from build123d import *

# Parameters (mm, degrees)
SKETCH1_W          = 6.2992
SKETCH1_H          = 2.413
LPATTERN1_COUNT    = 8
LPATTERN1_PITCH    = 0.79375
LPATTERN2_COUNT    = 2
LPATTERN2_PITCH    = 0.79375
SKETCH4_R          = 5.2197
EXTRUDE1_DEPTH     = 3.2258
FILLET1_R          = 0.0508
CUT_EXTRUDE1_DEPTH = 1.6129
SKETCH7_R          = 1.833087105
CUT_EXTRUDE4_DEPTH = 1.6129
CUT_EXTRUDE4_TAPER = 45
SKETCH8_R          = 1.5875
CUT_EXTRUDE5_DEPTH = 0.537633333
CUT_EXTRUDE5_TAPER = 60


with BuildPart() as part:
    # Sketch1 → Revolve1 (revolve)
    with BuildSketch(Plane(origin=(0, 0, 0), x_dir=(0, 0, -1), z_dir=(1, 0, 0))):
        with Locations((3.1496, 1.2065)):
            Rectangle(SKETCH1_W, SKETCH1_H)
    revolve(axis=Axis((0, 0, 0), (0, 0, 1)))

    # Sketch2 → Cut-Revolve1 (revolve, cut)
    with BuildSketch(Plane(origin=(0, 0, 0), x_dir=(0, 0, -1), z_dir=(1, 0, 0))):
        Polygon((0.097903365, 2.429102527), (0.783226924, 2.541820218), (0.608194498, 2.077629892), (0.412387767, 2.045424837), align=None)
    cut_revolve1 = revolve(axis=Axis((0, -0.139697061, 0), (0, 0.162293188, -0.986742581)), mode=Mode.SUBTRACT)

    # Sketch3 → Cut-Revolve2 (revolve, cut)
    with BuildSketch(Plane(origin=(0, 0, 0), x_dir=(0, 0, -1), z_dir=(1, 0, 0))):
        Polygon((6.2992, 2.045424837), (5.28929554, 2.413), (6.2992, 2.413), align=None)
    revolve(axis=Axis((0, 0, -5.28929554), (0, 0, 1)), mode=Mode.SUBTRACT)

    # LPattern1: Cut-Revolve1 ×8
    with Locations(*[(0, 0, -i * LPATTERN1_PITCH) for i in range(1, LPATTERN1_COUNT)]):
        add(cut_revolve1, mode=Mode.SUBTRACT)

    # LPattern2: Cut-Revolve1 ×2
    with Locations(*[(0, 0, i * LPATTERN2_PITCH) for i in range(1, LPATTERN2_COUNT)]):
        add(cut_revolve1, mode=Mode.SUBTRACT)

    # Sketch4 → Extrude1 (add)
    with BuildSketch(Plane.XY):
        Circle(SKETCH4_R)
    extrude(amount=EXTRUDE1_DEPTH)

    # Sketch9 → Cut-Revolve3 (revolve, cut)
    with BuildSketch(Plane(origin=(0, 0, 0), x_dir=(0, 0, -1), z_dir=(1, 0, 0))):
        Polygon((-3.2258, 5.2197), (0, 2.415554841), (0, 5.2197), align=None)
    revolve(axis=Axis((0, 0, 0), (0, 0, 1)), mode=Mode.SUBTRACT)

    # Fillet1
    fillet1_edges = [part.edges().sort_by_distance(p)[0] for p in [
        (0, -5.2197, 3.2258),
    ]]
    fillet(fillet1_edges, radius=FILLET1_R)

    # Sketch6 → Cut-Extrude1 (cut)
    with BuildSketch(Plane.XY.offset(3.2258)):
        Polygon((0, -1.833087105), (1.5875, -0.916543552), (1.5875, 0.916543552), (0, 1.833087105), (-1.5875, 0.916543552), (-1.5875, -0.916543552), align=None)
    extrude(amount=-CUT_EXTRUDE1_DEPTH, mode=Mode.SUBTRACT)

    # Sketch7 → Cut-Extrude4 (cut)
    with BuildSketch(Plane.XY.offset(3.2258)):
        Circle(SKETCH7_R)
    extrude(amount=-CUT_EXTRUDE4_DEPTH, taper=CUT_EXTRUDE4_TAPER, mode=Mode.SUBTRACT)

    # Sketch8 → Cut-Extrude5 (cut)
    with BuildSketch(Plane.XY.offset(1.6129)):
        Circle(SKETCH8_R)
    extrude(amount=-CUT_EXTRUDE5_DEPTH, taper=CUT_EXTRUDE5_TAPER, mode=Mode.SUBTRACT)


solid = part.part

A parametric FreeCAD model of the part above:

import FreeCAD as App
import Part
import Sketcher
from FreeCAD import Vector
Q = App.Units.Quantity


def edges_at(feature, points):
    """Names of the edges that pass closest to the given points."""
    edges = feature.Shape.Edges
    near = lambda p: min(range(len(edges)), key=lambda i: edges[i].distToShape(Part.Vertex(*p))[0])
    return sorted({f"Edge{near(p) + 1}" for p in points})


def add_polygon(sketch, points):
    """Adds a closed chain of lines whose ends are joined by coincident constraints."""
    first, n = sketch.GeometryCount, len(points)
    for a, b in zip(points, points[1:] + points[:1]):
        sketch.addGeometry(Part.LineSegment(App.Vector(*a, 0), App.Vector(*b, 0)), False)
    for i in range(n):
        sketch.addConstraint(Sketcher.Constraint("Coincident", first + i, 2, first + (i + 1) % n, 1))

doc = App.newDocument("Part")
params = doc.addObject("Spreadsheet::Sheet", "Params")
for row, (alias, value) in enumerate([
    ("sketch1_width", "0.095 in"),
    ("sketch1_height", "0.248 in"),
    ("revolution_angle", "360 deg"),
    ("groove_angle", "360 deg"),
    ("groove2_angle", "360 deg"),
    ("linearpattern_pitch", "0.03125 in"),
    ("linearpattern2_pitch", "0.03125 in"),
    ("sketch4_diameter", "0.411 in"),
    ("pad1_length", "0.127 in"),
    ("sketch5_height", "0.127 in"),
    ("groove3_angle", "360 deg"),
    ("fillet_radius", "0.002 in"),
    ("pocket1_length", "0.0635 in"),
    ("pocket2_length", "0.0635 in"),
    ("pocket2_taper", "-45 deg"),
    ("sketch8_diameter", "0.125 in"),
    ("pocket3_length", "0.537633 mm"),
    ("pocket3_taper", "-60 deg"),
], start=1):
    params.set(f"A{row}", alias)
    params.set(f"B{row}", "=" + value)
    params.setAlias(f"B{row}", alias)

body = doc.addObject("PartDesign::Body", "Body")

sketch1 = body.newObject("Sketcher::SketchObject", "Sketch")
sketch1.AttachmentSupport = (doc.getObject("YZ_Plane"), [""])
sketch1.MapMode = "FlatFace"
add_polygon(sketch1, [(2.413, 0), (0, 0), (0, -6.2992), (2.413, -6.2992)])
sketch1.addConstraint([
    Sketcher.Constraint("Horizontal", 0),
    Sketcher.Constraint("Vertical", 1),
    Sketcher.Constraint("Horizontal", 2),
    Sketcher.Constraint("Vertical", 3),
    Sketcher.Constraint("Coincident", 0, 2, -1, 1),
    Sketcher.Constraint("DistanceX", 0, 2, 0, 1, Q("0.095 in")),
    Sketcher.Constraint("DistanceY", 1, 2, 1, 1, Q("0.248 in")),
])
sketch1.setExpression("Constraints[9]", "Params.sketch1_width")
sketch1.setExpression("Constraints[10]", "Params.sketch1_height")
revolution = body.newObject("PartDesign::Revolution", "Revolution")
revolution.Profile = sketch1
revolution.ReferenceAxis = (sketch1, ["V_Axis"])
revolution.setExpression("Angle", "Params.revolution_angle")

sketch2 = body.newObject("Sketcher::SketchObject", "Sketch001")
sketch2.AttachmentSupport = (doc.getObject("YZ_Plane"), [""])
sketch2.MapMode = "FlatFace"
add_polygon(sketch2, [(2.54182, -0.783227), (2.429103, -0.097903), (2.045425, -0.412388), (2.07763, -0.608194)])
sketch2.addGeometry(Part.LineSegment(Vector(-0.056359, -0.506696, 0), Vector(0.056359, -1.19202, 0)), True)
sketch2.addConstraint([
    Sketcher.Constraint("Parallel", 0, 2),
    Sketcher.Constraint("Parallel", 2, 4),
    Sketcher.Constraint("Equal", 1, 3),
    Sketcher.Constraint("Equal", 0, 4),
    Sketcher.Constraint("DistanceY", 3, 2, 1, 2, Q("0.0146 in")),
    Sketcher.Constraint("DistanceY", 2, 2, 4, 1, Q("0.101498 mm")),
    Sketcher.Constraint("Distance", 0, Q("0.694531 mm")),
    Sketcher.Constraint("DistanceX", -1, 1, 2, 2, Q("2.07763 mm")),
    Sketcher.Constraint("DistanceX", -1, 1, 3, 2, Q("2.54182 mm")),
    Sketcher.Constraint("DistanceX", 4, 1, -1, 1, Q("0.056359 mm")),
    Sketcher.Constraint("DistanceX", -1, 1, 4, 2, Q("0.056359 mm")),
    Sketcher.Constraint("DistanceY", 4, 2, -1, 1, Q("1.19202 mm")),
])
groove = body.newObject("PartDesign::Groove", "Groove")
groove.Profile = sketch2
groove.ReferenceAxis = (sketch2, ["Axis0"])
groove.setExpression("Angle", "Params.groove_angle")

sketch3 = body.newObject("Sketcher::SketchObject", "Sketch002")
sketch3.AttachmentSupport = (doc.getObject("YZ_Plane"), [""])
sketch3.MapMode = "FlatFace"
add_polygon(sketch3, [(2.413, -5.289296), (2.045425, -6.2992), (2.413, -6.2992)])
sketch3.addConstraint([
    Sketcher.Constraint("Horizontal", 1),
    Sketcher.Constraint("Vertical", 2),
    Sketcher.Constraint("Angle", 0, Q("-110 deg")),
    Sketcher.Constraint("DistanceY", 0, 2, -1, 1, Q("0.248 in")),
    Sketcher.Constraint("DistanceX", -1, 1, 1, 2, Q("0.095 in")),
    Sketcher.Constraint("DistanceX", 1, 1, 1, 2, Q("0.367575 mm")),
])
groove2 = body.newObject("PartDesign::Groove", "Groove001")
groove2.Profile = sketch3
groove2.ReferenceAxis = (sketch3, ["V_Axis"])
groove2.setExpression("Angle", "Params.groove2_angle")
doc.recompute()

linearpattern = body.newObject("PartDesign::LinearPattern", "LinearPattern")
linearpattern.Originals = [groove]
linearpattern.Direction = (doc.getObject("Z_Axis"), [""])
linearpattern.Mode = "offset"
linearpattern.setExpression("Offset", "Params.linearpattern_pitch")
linearpattern.Occurrences = 8
linearpattern.Reversed = True
body.Tip = linearpattern
doc.recompute()

linearpattern2 = body.newObject("PartDesign::LinearPattern", "LinearPattern001")
linearpattern2.Originals = [groove]
linearpattern2.Direction = (doc.getObject("Z_Axis"), [""])
linearpattern2.Mode = "offset"
linearpattern2.setExpression("Offset", "Params.linearpattern2_pitch")
linearpattern2.Occurrences = 2
body.Tip = linearpattern2

sketch4 = body.newObject("Sketcher::SketchObject", "Sketch003")
sketch4.AttachmentSupport = (doc.getObject("XY_Plane"), [""])
sketch4.MapMode = "FlatFace"
sketch4.addGeometry(Part.Circle(Vector(0, 0, 0), Vector(0, 0, 1), 5.2197), False)
sketch4.addConstraint([
    Sketcher.Constraint("Coincident", 0, 3, -1, 1),
    Sketcher.Constraint("Diameter", 0, Q("0.411 in")),
])
sketch4.setExpression("Constraints[1]", "Params.sketch4_diameter")
pad1 = body.newObject("PartDesign::Pad", "Pad")
pad1.Profile = sketch4
pad1.setExpression("Length", "Params.pad1_length")

sketch5 = body.newObject("Sketcher::SketchObject", "Sketch004")
sketch5.AttachmentSupport = (doc.getObject("YZ_Plane"), [""])
sketch5.MapMode = "FlatFace"
add_polygon(sketch5, [(5.2197, 3.2258), (2.415555, 0), (5.2197, 0)])
sketch5.addConstraint([
    Sketcher.Constraint("Horizontal", 1),
    Sketcher.Constraint("Vertical", 2),
    Sketcher.Constraint("PointOnObject", 0, 2, -1),
    Sketcher.Constraint("Angle", 0, Q("-131 deg")),
    Sketcher.Constraint("DistanceY", 2, 1, 2, 2, Q("0.127 in")),
    Sketcher.Constraint("DistanceX", -1, 1, 1, 2, Q("0.2055 in")),
])
sketch5.setExpression("Constraints[7]", "Params.sketch5_height")
groove3 = body.newObject("PartDesign::Groove", "Groove002")
groove3.Profile = sketch5
groove3.ReferenceAxis = (sketch5, ["V_Axis"])
groove3.setExpression("Angle", "Params.groove3_angle")
doc.recompute()

fillet = body.newObject("PartDesign::Fillet", "Fillet")
fillet.Base = (groove3, edges_at(groove3, [(0, -5.22, 3.226)]))
fillet.setExpression("Radius", "Params.fillet_radius")

sketch6 = body.newObject("Sketcher::SketchObject", "Sketch005")
sketch6.AttachmentSupport = (doc.getObject("XY_Plane"), [""])
sketch6.MapMode = "FlatFace"
sketch6.AttachmentOffset = App.Placement(Vector(0, 0, 0.127 * 25.4), App.Rotation())
add_polygon(sketch6, [(0, -1.833087), (1.5875, -0.916544), (1.5875, 0.916544), (0, 1.833087), (-1.5875, 0.916544), (-1.5875, -0.916544)])
sketch6.addConstraint([
    Sketcher.Constraint("Vertical", 1),
    Sketcher.Constraint("Vertical", 4),
    Sketcher.Constraint("Symmetric", 0, 2, 3, 2, -1, 1),
    Sketcher.Constraint("Symmetric", 2, 2, 5, 2, -1, 1),
    Sketcher.Constraint("PointOnObject", 2, 2, -2),
    Sketcher.Constraint("Parallel", 2, 5),
    Sketcher.Constraint("Horizontal", 1, 2, 3, 2),
    Sketcher.Constraint("Angle", 0, Q("30 deg")),
    Sketcher.Constraint("DistanceX", -1, 1, 0, 2, Q("0.0625 in")),
    Sketcher.Constraint("DistanceY", 1, 1, 1, 2, Q("1.833087 mm")),
])
pocket1 = body.newObject("PartDesign::Pocket", "Pocket")
pocket1.Profile = sketch6
pocket1.setExpression("Length", "Params.pocket1_length")

sketch7 = body.newObject("Sketcher::SketchObject", "Sketch006")
sketch7.AttachmentSupport = (doc.getObject("XY_Plane"), [""])
sketch7.MapMode = "FlatFace"
sketch7.AttachmentOffset = App.Placement(Vector(0, 0, 0.127 * 25.4), App.Rotation())
sketch7.addGeometry(Part.Circle(Vector(0, 0, 0), Vector(0, 0, 1), 1.833087), False)
sketch7.addConstraint([
    Sketcher.Constraint("Coincident", 0, 3, -1, 1),
    Sketcher.Constraint("Diameter", 0, Q("3.666174 mm")),
])
pocket2 = body.newObject("PartDesign::Pocket", "Pocket001")
pocket2.Profile = sketch7
pocket2.setExpression("Length", "Params.pocket2_length")
pocket2.setExpression("TaperAngle", "Params.pocket2_taper")

sketch8 = body.newObject("Sketcher::SketchObject", "Sketch007")
sketch8.AttachmentSupport = (doc.getObject("XY_Plane"), [""])
sketch8.MapMode = "FlatFace"
sketch8.AttachmentOffset = App.Placement(Vector(0, 0, 0.0635 * 25.4), App.Rotation())
sketch8.addGeometry(Part.Circle(Vector(0, 0, 0), Vector(0, 0, 1), 1.5875), False)
sketch8.addConstraint([
    Sketcher.Constraint("Coincident", 0, 3, -1, 1),
    Sketcher.Constraint("Diameter", 0, Q("0.125 in")),
])
sketch8.setExpression("Constraints[1]", "Params.sketch8_diameter")
pocket3 = body.newObject("PartDesign::Pocket", "Pocket002")
pocket3.Profile = sketch8
pocket3.setExpression("Length", "Params.pocket3_length")
pocket3.setExpression("TaperAngle", "Params.pocket3_taper")

doc.recompute()
